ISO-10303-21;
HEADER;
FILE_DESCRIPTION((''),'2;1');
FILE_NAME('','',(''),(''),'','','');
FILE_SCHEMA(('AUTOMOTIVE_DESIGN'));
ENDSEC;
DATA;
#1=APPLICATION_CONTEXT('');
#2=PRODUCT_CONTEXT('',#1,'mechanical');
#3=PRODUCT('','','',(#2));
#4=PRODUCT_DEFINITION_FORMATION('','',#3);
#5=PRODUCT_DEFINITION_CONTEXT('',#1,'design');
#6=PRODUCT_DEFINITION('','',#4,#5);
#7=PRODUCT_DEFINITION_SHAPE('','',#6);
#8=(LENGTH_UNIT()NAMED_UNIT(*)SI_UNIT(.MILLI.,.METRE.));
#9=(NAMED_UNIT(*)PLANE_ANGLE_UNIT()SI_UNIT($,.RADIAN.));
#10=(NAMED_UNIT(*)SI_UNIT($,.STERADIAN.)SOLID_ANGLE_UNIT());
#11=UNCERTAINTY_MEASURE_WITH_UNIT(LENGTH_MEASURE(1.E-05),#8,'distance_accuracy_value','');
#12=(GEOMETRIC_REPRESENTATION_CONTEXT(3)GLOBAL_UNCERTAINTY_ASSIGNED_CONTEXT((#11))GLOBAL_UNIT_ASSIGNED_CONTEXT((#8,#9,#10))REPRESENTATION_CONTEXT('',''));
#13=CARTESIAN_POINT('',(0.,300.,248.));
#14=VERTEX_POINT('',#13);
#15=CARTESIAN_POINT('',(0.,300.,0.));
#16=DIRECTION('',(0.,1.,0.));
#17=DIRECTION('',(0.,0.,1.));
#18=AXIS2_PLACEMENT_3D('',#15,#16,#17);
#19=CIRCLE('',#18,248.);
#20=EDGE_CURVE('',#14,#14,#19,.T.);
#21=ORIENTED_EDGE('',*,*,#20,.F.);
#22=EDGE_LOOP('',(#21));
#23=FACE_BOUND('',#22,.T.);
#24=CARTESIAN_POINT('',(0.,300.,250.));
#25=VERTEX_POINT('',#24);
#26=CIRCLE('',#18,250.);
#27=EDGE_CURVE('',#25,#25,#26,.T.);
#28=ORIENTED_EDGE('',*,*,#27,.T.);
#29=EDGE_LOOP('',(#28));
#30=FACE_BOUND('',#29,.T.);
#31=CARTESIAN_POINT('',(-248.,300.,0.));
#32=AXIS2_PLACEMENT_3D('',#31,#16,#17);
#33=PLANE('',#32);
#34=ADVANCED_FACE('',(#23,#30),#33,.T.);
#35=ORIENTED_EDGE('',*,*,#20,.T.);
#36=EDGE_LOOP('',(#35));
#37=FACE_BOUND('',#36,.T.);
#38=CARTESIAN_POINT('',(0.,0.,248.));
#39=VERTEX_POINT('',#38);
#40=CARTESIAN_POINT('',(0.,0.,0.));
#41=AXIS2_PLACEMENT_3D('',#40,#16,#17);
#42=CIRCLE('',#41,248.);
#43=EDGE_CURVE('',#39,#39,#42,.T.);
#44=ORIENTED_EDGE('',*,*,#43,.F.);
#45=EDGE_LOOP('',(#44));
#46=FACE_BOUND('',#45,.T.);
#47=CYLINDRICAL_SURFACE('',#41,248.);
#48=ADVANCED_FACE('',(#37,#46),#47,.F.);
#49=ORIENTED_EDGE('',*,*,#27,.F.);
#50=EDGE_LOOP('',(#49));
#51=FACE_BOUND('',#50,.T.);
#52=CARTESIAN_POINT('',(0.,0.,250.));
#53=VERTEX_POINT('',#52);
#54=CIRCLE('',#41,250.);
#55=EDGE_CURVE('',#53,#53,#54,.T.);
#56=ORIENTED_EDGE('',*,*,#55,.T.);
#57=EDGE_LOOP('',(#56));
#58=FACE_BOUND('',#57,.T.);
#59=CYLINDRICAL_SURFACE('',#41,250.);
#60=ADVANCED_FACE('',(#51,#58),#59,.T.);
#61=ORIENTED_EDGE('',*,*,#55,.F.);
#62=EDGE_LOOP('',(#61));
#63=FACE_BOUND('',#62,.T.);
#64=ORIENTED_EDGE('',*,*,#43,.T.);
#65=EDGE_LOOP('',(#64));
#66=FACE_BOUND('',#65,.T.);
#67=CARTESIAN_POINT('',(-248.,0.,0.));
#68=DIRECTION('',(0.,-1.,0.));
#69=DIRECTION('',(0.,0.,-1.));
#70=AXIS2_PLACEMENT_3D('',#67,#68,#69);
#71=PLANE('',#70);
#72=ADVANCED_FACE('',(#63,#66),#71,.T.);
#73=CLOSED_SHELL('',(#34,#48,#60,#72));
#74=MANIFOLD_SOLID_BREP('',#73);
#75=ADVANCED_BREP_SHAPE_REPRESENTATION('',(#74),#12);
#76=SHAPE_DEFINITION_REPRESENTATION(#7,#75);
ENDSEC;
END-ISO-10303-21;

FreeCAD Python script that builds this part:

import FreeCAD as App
import Part
import Sketcher
from FreeCAD import Vector

doc = App.newDocument("Part")
body = doc.addObject("PartDesign::Body", "Body")

# Sketch on XY plane
sketch1 = body.newObject("Sketcher::SketchObject", "Sketch")
sketch1.AttachmentSupport = (doc.getObject("XY_Plane"), [""])
sketch1.MapMode = "FlatFace"
sketch1.addGeometry([
    Part.LineSegment(Vector(-250, 300, 0), Vector(-250, 0, 0)),
    Part.LineSegment(Vector(-250, 0, 0), Vector(-248, 0, 0)),
    Part.LineSegment(Vector(-248, 0, 0), Vector(-248, 300, 0)),
    Part.LineSegment(Vector(-248, 300, 0), Vector(-250, 300, 0)),
], False)
sketch1.addConstraint([
    Sketcher.Constraint("Coincident", 0, 2, 1, 1),
    Sketcher.Constraint("Coincident", 1, 2, 2, 1),
    Sketcher.Constraint("Coincident", 2, 2, 3, 1),
    Sketcher.Constraint("Coincident", 3, 2, 0, 1),
    Sketcher.Constraint("Vertical", 0),
    Sketcher.Constraint("Horizontal", 1),
    Sketcher.Constraint("Vertical", 2),
    Sketcher.Constraint("Horizontal", 3),
    Sketcher.Constraint("PointOnObject", 0, 2, -1),
    Sketcher.Constraint("DistanceX", 1, 1, 1, 2, 2.0),
    Sketcher.Constraint("DistanceY", 0, 2, 0, 1, 300.0),
    Sketcher.Constraint("DistanceX", 0, 2, -1, 1, 250.0),
])
revolution = body.newObject("PartDesign::Revolution", "Revolution")
revolution.Profile = sketch1
revolution.ReferenceAxis = (sketch1, ["V_Axis"])
revolution.Angle = 360

doc.recompute()
